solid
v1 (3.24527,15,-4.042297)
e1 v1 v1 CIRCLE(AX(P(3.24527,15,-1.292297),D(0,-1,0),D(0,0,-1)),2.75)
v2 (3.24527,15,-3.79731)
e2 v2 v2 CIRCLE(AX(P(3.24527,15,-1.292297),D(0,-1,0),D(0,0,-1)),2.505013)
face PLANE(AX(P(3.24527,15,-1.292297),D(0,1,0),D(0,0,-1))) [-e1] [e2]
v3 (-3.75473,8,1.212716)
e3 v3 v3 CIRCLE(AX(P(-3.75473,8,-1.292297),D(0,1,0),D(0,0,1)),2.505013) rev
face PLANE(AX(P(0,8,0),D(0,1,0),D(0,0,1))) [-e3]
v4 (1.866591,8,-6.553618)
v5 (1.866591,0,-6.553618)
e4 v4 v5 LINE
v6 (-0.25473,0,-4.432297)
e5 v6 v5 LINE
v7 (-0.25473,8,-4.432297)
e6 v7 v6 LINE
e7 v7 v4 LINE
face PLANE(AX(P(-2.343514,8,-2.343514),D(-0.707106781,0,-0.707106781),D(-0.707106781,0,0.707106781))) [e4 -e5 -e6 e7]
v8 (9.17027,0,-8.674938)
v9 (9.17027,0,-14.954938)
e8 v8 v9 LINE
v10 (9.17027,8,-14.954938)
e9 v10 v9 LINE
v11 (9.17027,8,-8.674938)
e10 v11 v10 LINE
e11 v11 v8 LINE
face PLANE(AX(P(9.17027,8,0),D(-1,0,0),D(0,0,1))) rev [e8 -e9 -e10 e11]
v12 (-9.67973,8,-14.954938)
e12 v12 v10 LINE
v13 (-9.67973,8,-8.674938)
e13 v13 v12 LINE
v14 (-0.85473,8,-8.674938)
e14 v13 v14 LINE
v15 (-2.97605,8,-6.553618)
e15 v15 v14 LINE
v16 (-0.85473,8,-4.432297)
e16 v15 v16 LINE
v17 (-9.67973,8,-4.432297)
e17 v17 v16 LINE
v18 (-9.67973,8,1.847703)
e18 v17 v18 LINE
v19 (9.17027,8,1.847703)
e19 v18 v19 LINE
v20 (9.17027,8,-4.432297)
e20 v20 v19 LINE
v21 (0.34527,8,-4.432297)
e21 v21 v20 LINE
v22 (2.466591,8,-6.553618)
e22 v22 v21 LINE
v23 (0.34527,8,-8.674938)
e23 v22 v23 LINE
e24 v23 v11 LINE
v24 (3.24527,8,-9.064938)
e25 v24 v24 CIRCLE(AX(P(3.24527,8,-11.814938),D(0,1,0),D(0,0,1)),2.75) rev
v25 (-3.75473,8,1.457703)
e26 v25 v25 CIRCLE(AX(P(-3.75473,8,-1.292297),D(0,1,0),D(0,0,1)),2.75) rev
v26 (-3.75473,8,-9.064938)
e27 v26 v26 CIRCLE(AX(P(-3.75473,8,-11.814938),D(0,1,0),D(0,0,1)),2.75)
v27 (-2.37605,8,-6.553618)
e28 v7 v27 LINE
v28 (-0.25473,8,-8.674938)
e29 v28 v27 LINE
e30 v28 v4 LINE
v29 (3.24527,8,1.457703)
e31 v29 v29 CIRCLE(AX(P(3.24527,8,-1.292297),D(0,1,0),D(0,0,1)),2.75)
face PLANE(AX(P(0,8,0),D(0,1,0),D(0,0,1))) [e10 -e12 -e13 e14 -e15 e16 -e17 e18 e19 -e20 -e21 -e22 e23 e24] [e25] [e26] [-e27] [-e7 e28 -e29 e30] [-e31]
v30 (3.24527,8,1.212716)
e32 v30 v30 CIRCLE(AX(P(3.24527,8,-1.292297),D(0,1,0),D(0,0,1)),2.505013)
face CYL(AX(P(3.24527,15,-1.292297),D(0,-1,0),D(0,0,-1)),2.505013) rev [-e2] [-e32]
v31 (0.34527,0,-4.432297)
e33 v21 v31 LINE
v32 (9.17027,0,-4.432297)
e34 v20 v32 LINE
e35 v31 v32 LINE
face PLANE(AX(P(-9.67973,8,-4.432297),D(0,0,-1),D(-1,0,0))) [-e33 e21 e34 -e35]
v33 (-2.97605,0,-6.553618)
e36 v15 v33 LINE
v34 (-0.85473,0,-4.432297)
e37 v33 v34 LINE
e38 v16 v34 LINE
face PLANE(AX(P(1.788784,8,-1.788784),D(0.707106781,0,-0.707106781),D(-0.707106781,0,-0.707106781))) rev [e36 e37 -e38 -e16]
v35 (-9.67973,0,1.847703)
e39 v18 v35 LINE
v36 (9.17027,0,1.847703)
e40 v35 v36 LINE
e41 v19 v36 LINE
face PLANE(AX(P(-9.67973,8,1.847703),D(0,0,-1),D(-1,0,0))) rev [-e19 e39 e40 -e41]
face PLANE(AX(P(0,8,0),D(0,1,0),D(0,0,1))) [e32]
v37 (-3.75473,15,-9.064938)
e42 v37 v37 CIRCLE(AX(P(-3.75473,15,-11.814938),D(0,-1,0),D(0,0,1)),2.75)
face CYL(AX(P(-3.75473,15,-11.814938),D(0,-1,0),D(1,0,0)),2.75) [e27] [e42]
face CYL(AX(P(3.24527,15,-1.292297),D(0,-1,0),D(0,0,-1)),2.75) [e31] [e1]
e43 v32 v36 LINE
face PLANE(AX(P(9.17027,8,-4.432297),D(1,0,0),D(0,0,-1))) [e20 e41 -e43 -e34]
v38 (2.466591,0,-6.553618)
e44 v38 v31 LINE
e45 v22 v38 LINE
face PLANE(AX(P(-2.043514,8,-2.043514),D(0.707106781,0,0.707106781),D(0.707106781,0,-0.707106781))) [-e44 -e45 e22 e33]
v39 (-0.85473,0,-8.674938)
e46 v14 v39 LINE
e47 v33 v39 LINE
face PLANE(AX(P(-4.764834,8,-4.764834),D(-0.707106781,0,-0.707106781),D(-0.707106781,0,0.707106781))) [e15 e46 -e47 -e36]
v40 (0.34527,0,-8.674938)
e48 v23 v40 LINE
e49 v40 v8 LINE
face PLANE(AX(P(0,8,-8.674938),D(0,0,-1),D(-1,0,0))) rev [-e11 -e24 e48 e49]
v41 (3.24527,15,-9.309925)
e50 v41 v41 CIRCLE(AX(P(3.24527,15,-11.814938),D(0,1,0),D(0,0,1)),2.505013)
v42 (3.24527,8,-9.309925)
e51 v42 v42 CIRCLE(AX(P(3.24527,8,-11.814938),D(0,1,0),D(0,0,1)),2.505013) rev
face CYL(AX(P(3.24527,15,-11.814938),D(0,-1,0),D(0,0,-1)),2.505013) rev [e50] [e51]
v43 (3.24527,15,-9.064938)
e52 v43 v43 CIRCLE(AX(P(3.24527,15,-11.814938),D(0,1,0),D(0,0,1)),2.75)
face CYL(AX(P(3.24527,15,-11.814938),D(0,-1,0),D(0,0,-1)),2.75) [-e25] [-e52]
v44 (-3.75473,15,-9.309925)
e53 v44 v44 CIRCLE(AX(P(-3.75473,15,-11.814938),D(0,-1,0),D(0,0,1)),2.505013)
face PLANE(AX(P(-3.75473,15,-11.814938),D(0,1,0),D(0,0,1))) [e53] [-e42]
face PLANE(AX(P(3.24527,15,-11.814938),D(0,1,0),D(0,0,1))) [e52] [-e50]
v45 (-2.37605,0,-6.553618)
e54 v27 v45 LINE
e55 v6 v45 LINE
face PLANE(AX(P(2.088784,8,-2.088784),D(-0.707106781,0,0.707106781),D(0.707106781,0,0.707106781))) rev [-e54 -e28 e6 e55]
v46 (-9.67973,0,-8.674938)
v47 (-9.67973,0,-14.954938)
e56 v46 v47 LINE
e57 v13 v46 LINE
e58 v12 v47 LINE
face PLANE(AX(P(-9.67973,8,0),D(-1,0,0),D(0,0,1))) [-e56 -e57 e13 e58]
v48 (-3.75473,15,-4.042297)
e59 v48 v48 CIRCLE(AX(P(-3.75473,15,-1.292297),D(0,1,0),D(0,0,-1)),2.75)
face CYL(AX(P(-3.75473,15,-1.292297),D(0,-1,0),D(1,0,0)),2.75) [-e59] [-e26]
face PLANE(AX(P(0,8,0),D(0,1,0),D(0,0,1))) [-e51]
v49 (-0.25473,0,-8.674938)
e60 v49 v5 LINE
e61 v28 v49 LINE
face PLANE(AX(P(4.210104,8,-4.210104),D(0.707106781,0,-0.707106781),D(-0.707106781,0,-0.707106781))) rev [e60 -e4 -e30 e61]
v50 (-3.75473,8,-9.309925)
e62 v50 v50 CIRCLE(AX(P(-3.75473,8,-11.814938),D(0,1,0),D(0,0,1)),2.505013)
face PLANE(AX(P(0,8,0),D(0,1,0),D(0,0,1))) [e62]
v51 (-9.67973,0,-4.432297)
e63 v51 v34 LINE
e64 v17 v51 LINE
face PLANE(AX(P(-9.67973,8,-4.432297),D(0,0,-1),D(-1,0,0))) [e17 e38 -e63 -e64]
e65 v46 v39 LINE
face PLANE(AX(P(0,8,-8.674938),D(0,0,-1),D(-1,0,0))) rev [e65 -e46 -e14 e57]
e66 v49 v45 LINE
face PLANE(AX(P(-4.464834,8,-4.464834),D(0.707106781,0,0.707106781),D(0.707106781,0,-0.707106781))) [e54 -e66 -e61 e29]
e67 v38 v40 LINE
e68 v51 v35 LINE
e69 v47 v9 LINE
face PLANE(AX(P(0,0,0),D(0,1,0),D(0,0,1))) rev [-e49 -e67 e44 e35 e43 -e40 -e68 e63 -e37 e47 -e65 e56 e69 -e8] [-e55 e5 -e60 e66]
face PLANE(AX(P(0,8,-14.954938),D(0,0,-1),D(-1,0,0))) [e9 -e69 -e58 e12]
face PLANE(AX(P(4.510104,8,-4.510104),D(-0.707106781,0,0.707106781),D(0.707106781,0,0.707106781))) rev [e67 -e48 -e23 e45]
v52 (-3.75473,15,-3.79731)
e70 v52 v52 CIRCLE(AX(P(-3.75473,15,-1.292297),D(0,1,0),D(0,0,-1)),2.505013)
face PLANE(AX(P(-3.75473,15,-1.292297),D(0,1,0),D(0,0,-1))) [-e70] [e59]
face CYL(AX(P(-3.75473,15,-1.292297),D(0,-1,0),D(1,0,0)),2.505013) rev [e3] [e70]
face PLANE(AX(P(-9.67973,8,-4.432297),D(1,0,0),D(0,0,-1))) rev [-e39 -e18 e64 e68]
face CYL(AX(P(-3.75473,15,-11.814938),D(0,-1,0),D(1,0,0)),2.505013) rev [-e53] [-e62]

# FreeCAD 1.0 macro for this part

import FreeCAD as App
import Part
import Sketcher
from FreeCAD import Vector
Q = App.Units.Quantity

doc = App.newDocument("Part")
body = doc.addObject("PartDesign::Body", "Body")

sketch1 = body.newObject("Sketcher::SketchObject", "Sketch")
sketch1.AttachmentSupport = (doc.getObject("XZ_Plane"), [""])
sketch1.MapMode = "FlatFace"
sketch1.addGeometry(Part.LineSegment(Vector(-10, -4, 0), Vector(-10, 2, 0)), False)
sketch1.addGeometry(Part.LineSegment(Vector(-10, 2, 0), Vector(9, 2, 0)), False)
sketch1.addGeometry(Part.LineSegment(Vector(9, 2, 0), Vector(9, -4, 0)), False)
sketch1.addGeometry(Part.LineSegment(Vector(9, -4, 0), Vector(-10, -4, 0)), False)
sketch1.addConstraint(Sketcher.Constraint("Coincident", 0, 2, 1, 1))
sketch1.addConstraint(Sketcher.Constraint("Coincident", 1, 2, 2, 1))
sketch1.addConstraint(Sketcher.Constraint("Coincident", 2, 2, 3, 1))
sketch1.addConstraint(Sketcher.Constraint("Coincident", 3, 2, 0, 1))
sketch1.addConstraint(Sketcher.Constraint("Vertical", 0))
sketch1.addConstraint(Sketcher.Constraint("Horizontal", 1))
sketch1.addConstraint(Sketcher.Constraint("Vertical", 2))
sketch1.addConstraint(Sketcher.Constraint("Horizontal", 3))
sketch1.addConstraint(Sketcher.Constraint("DistanceX", 1, 1, 1, 2, Q("18.85 mm")))
sketch1.addConstraint(Sketcher.Constraint("DistanceY", 0, 1, 0, 2, Q("6.28 mm")))
sketch1.addConstraint(Sketcher.Constraint("DistanceX", 0, 2, -1, 1, Q("9.67973 mm")))
sketch1.addConstraint(Sketcher.Constraint("DistanceY", -1, 1, 0, 2, Q("1.847703 mm")))
pad1 = body.newObject("PartDesign::Pad", "Pad")
pad1.Profile = sketch1
pad1.Length = 8
pad1.Reversed = True
body2 = doc.addObject("PartDesign::Body", "Body001")

sketch2 = body2.newObject("Sketcher::SketchObject", "Sketch001")
sketch2.AttachmentSupport = (doc.getObject("XZ_Plane001"), [""])
sketch2.MapMode = "FlatFace"
sketch2.addGeometry(Part.LineSegment(Vector(-10, -15, 0), Vector(-10, -9, 0)), False)
sketch2.addGeometry(Part.LineSegment(Vector(-10, -9, 0), Vector(9, -9, 0)), False)
sketch2.addGeometry(Part.LineSegment(Vector(9, -9, 0), Vector(9, -15, 0)), False)
sketch2.addGeometry(Part.LineSegment(Vector(9, -15, 0), Vector(-10, -15, 0)), False)
sketch2.addConstraint(Sketcher.Constraint("Coincident", 0, 2, 1, 1))
sketch2.addConstraint(Sketcher.Constraint("Coincident", 1, 2, 2, 1))
sketch2.addConstraint(Sketcher.Constraint("Coincident", 2, 2, 3, 1))
sketch2.addConstraint(Sketcher.Constraint("Coincident", 3, 2, 0, 1))
sketch2.addConstraint(Sketcher.Constraint("Vertical", 0))
sketch2.addConstraint(Sketcher.Constraint("Horizontal", 1))
sketch2.addConstraint(Sketcher.Constraint("Vertical", 2))
sketch2.addConstraint(Sketcher.Constraint("Horizontal", 3))
sketch2.addConstraint(Sketcher.Constraint("DistanceX", 1, 1, 1, 2, Q("18.85 mm")))
sketch2.addConstraint(Sketcher.Constraint("DistanceY", 0, 1, 0, 2, Q("6.28 mm")))
sketch2.addConstraint(Sketcher.Constraint("DistanceX", 0, 2, -1, 1, Q("9.67973 mm")))
sketch2.addConstraint(Sketcher.Constraint("DistanceY", 0, 2, -1, 1, Q("8.674938 mm")))
pad2 = body2.newObject("PartDesign::Pad", "Pad001")
pad2.Profile = sketch2
pad2.Length = 8
pad2.Reversed = True
body.AllowCompound = True
doc.recompute()

boolean = body.newObject("PartDesign::Boolean", "Boolean")
boolean.Type = "Fuse"
boolean.addObjects([body2])

sketch3 = body.newObject("Sketcher::SketchObject", "Sketch002")
sketch3.AttachmentSupport = (doc.getObject("XZ_Plane"), [""])
sketch3.MapMode = "FlatFace"
sketch3.addGeometry(Part.LineSegment(Vector(-2.4, -6.6, 0), Vector(-0.3, -8.7, 0)), False)
sketch3.addGeometry(Part.LineSegment(Vector(-0.3, -8.7, 0), Vector(-0.9, -8.7, 0)), False)
sketch3.addGeometry(Part.LineSegment(Vector(-0.9, -8.7, 0), Vector(-3, -6.6, 0)), False)
sketch3.addGeometry(Part.LineSegment(Vector(-3, -6.6, 0), Vector(-0.9, -4.4, 0)), False)
sketch3.addGeometry(Part.LineSegment(Vector(-0.9, -4.4, 0), Vector(-0.3, -4.4, 0)), False)
sketch3.addGeometry(Part.LineSegment(Vector(-0.3, -4.4, 0), Vector(-2.4, -6.6, 0)), False)
sketch3.addGeometry(Part.LineSegment(Vector(-0.3, -8.7, 0), Vector(1.9, -6.6, 0)), False)
sketch3.addGeometry(Part.LineSegment(Vector(1.9, -6.6, 0), Vector(-0.3, -4.4, 0)), False)
sketch3.addGeometry(Part.LineSegment(Vector(-0.3, -4.4, 0), Vector(0.3, -4.4, 0)), False)
sketch3.addGeometry(Part.LineSegment(Vector(0.3, -4.4, 0), Vector(2.5, -6.6, 0)), False)
sketch3.addGeometry(Part.LineSegment(Vector(2.5, -6.6, 0), Vector(0.3, -8.7, 0)), False)
sketch3.addGeometry(Part.LineSegment(Vector(0.3, -8.7, 0), Vector(-0.3, -8.7, 0)), False)
sketch3.addConstraint(Sketcher.Constraint("Coincident", 0, 2, 1, 1))
sketch3.addConstraint(Sketcher.Constraint("Coincident", 1, 2, 2, 1))
sketch3.addConstraint(Sketcher.Constraint("Coincident", 2, 2, 3, 1))
sketch3.addConstraint(Sketcher.Constraint("Coincident", 3, 2, 4, 1))
sketch3.addConstraint(Sketcher.Constraint("Coincident", 4, 2, 5, 1))
sketch3.addConstraint(Sketcher.Constraint("Coincident", 5, 2, 0, 1))
sketch3.addConstraint(Sketcher.Constraint("Coincident", 6, 2, 7, 1))
sketch3.addConstraint(Sketcher.Constraint("Coincident", 7, 2, 8, 1))
sketch3.addConstraint(Sketcher.Constraint("Coincident", 8, 2, 9, 1))
sketch3.addConstraint(Sketcher.Constraint("Coincident", 9, 2, 10, 1))
sketch3.addConstraint(Sketcher.Constraint("Coincident", 10, 2, 11, 1))
sketch3.addConstraint(Sketcher.Constraint("Coincident", 11, 2, 6, 1))
sketch3.addConstraint(Sketcher.Constraint("Horizontal", 1))
sketch3.addConstraint(Sketcher.Constraint("Horizontal", 4))
sketch3.addConstraint(Sketcher.Constraint("Horizontal", 8))
sketch3.addConstraint(Sketcher.Constraint("Horizontal", 11))
sketch3.addConstraint(Sketcher.Constraint("Coincident", 7, 2, 4, 2))
sketch3.addConstraint(Sketcher.Constraint("Coincident", 11, 2, 0, 2))
sketch3.addConstraint(Sketcher.Constraint("Parallel", 0, 2))
sketch3.addConstraint(Sketcher.Constraint("Perpendicular", 2, 3))
sketch3.addConstraint(Sketcher.Constraint("Parallel", 3, 5))
sketch3.addConstraint(Sketcher.Constraint("Parallel", 5, 6))
sketch3.addConstraint(Sketcher.Constraint("Perpendicular", 6, 7))
sketch3.addConstraint(Sketcher.Constraint("Parallel", 7, 9))
sketch3.addConstraint(Sketcher.Constraint("Perpendicular", 9, 10))
sketch3.addConstraint(Sketcher.Constraint("Horizontal", 2, 2, 5, 2))
sketch3.addConstraint(Sketcher.Constraint("Horizontal", 5, 2, 6, 2))
sketch3.addConstraint(Sketcher.Constraint("Horizontal", 6, 2, 9, 2))
sketch3.addConstraint(Sketcher.Constraint("Vertical", 1, 2, 3, 2))
sketch3.addConstraint(Sketcher.Constraint("Equal", 4, 8))
sketch3.addConstraint(Sketcher.Constraint("Distance", 0, Q("3 mm")))
sketch3.addConstraint(Sketcher.Constraint("DistanceX", 1, 2, 1, 1, Q("0.6 mm")))
sketch3.addConstraint(Sketcher.Constraint("DistanceX", 0, 2, -1, 1, Q("0.25473 mm")))
sketch3.addConstraint(Sketcher.Constraint("DistanceY", 0, 2, -1, 1, Q("8.674938 mm")))
pad3 = body.newObject("PartDesign::Pad", "Pad002")
pad3.Profile = sketch3
pad3.Length = 8
pad3.Reversed = True

sketch4 = body.newObject("Sketcher::SketchObject", "Sketch003")
sketch4.AttachmentSupport = (doc.getObject("XZ_Plane"), [""])
sketch4.MapMode = "FlatFace"
sketch4.addGeometry(Part.Circle(Vector(3.2, -11.8, 0), Vector(0, 0, 1), 2.8), False)
sketch4.addGeometry(Part.Circle(Vector(3.2, -11.8, 0), Vector(0, 0, 1), 2.5), False)
sketch4.addConstraint(Sketcher.Constraint("Coincident", 1, 3, 0, 3))
sketch4.addConstraint(Sketcher.Constraint("Diameter", 0, Q("5.5 mm")))
sketch4.addConstraint(Sketcher.Constraint("Diameter", 1, Q("5.010026 mm")))
sketch4.addConstraint(Sketcher.Constraint("DistanceX", -1, 1, 0, 3, Q("3.24527 mm")))
sketch4.addConstraint(Sketcher.Constraint("DistanceY", 0, 3, -1, 1, Q("11.814938 mm")))
pad4 = body.newObject("PartDesign::Pad", "Pad003")
pad4.Profile = sketch4
pad4.Length = 15
pad4.Reversed = True
doc.recompute()

datumplane = body.newObject("PartDesign::Plane", "DatumPlane")
datumplane.AttachmentSupport = (doc.getObject("YZ_Plane"), [""])
datumplane.MapMode = "FlatFace"
datumplane.AttachmentOffset = App.Placement(Vector(0, 0, -0.25473), App.Rotation())
mirrored = body.newObject("PartDesign::Mirrored", "Mirrored")
mirrored.Originals = [pad4]
mirrored.MirrorPlane = (datumplane, [""])
body.Tip = mirrored
doc.recompute()

datumplane2 = body.newObject("PartDesign::Plane", "DatumPlane001")
datumplane2.AttachmentSupport = (doc.getObject("XY_Plane"), [""])
datumplane2.MapMode = "FlatFace"
datumplane2.AttachmentOffset = App.Placement(Vector(0, 0, -6.553618), App.Rotation())
mirrored2 = body.newObject("PartDesign::Mirrored", "Mirrored001")
mirrored2.Originals = [pad4]
mirrored2.MirrorPlane = (datumplane2, [""])
body.Tip = mirrored2

sketch5 = body.newObject("Sketcher::SketchObject", "Sketch004")
sketch5.AttachmentSupport = (doc.getObject("XZ_Plane"), [""])
sketch5.MapMode = "FlatFace"
sketch5.addGeometry(Part.Circle(Vector(-3.8, -1.3, 0), Vector(0, 0, 1), 2.8), False)
sketch5.addGeometry(Part.Circle(Vector(-3.8, -1.3, 0), Vector(0, 0, 1), 2.5), False)
sketch5.addConstraint(Sketcher.Constraint("Coincident", 1, 3, 0, 3))
sketch5.addConstraint(Sketcher.Constraint("Diameter", 0, Q("5.5 mm")))
sketch5.addConstraint(Sketcher.Constraint("Diameter", 1, Q("5.010026 mm")))
sketch5.addConstraint(Sketcher.Constraint("DistanceX", 0, 3, -1, 1, Q("3.75473 mm")))
sketch5.addConstraint(Sketcher.Constraint("DistanceY", 0, 3, -1, 1, Q("1.292297 mm")))
pad5 = body.newObject("PartDesign::Pad", "Pad004")
pad5.Profile = sketch5
pad5.Length = 15
pad5.Reversed = True

doc.recompute()
